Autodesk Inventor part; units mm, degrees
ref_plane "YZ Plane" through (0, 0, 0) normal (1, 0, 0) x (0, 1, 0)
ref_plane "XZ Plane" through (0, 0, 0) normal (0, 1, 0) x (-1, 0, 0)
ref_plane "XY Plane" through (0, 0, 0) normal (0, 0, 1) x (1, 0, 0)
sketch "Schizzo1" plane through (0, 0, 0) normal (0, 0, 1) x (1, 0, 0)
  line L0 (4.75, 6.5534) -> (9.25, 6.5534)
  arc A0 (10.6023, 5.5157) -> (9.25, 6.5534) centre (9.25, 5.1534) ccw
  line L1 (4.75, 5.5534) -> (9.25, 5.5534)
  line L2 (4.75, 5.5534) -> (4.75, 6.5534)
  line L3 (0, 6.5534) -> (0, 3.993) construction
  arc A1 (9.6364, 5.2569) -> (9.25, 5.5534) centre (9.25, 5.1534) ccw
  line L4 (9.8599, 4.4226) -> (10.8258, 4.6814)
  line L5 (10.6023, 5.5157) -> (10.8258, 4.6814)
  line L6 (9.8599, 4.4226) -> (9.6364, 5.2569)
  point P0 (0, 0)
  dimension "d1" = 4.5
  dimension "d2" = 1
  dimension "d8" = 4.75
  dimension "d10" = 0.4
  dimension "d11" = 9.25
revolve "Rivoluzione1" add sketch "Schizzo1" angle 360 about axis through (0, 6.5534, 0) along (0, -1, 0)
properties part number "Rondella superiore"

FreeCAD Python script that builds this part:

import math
import FreeCAD as App
import Part
import Sketcher
Q = App.Units.Quantity

doc = App.newDocument("Part")
params = doc.addObject("Spreadsheet::Sheet", "Params")
for row, (alias, value) in enumerate([
    ("sketch1_radius", "0.4 mm"),
    ("sketch1_height", "1 mm"),
    ("sketch1_width", "4.5 mm"),
    ("revolution_angle", "360 deg"),
], start=1):
    params.set(f"A{row}", alias)
    params.set(f"B{row}", "=" + value)
    params.setAlias(f"B{row}", alias)

body = doc.addObject("PartDesign::Body", "Body")

sketch1 = doc.addObject("Sketcher::SketchObject", "Sketch")
body.addObject(sketch1)
sketch1.AttachmentSupport = (doc.XY_Plane, [""])
sketch1.MapMode = "FlatFace"
sketch1.addGeometry(Part.LineSegment(App.Vector(9.25, 6.55, 0), App.Vector(4.75, 6.55, 0)), False)
sketch1.addGeometry(Part.LineSegment(App.Vector(4.75, 6.55, 0), App.Vector(4.75, 5.55, 0)), False)
sketch1.addGeometry(Part.LineSegment(App.Vector(4.75, 5.55, 0), App.Vector(9.25, 5.55, 0)), False)
sketch1.addGeometry(Part.ArcOfCircle(Part.Circle(App.Vector(9.25, 5.15, 0), App.Vector(0, 0, 1), 0.4), math.radians(15), math.radians(90)), False)
sketch1.addGeometry(Part.LineSegment(App.Vector(9.64, 5.26, 0), App.Vector(9.86, 4.42, 0)), False)
sketch1.addGeometry(Part.LineSegment(App.Vector(9.86, 4.42, 0), App.Vector(10.83, 4.68, 0)), False)
sketch1.addGeometry(Part.LineSegment(App.Vector(10.83, 4.68, 0), App.Vector(10.6, 5.52, 0)), False)
sketch1.addGeometry(Part.ArcOfCircle(Part.Circle(App.Vector(9.25, 5.15, 0), App.Vector(0, 0, 1), 1.4), math.radians(15), math.radians(90)), False)
sketch1.addConstraint(Sketcher.Constraint("Coincident", 0, 2, 1, 1))
sketch1.addConstraint(Sketcher.Constraint("Coincident", 1, 2, 2, 1))
sketch1.addConstraint(Sketcher.Constraint("Tangent", 2, 2, 3, 2))
sketch1.addConstraint(Sketcher.Constraint("Tangent", 3, 1, 4, 1))
sketch1.addConstraint(Sketcher.Constraint("Coincident", 4, 2, 5, 1))
sketch1.addConstraint(Sketcher.Constraint("Coincident", 5, 2, 6, 1))
sketch1.addConstraint(Sketcher.Constraint("Tangent", 6, 2, 7, 1))
sketch1.addConstraint(Sketcher.Constraint("Tangent", 7, 2, 0, 1))
sketch1.addConstraint(Sketcher.Constraint("Horizontal", 0))
sketch1.addConstraint(Sketcher.Constraint("Vertical", 1))
sketch1.addConstraint(Sketcher.Constraint("Horizontal", 2))
sketch1.addConstraint(Sketcher.Constraint("Coincident", 7, 3, 3, 3))
sketch1.addConstraint(Sketcher.Constraint("Perpendicular", 4, 5))
sketch1.addConstraint(Sketcher.Constraint("Perpendicular", 5, 6))
sketch1.addConstraint(Sketcher.Constraint("Radius", 3, Q("0.4 mm")))
sketch1.addConstraint(Sketcher.Constraint("DistanceY", 1, 2, 1, 1, Q("1 mm")))
sketch1.addConstraint(Sketcher.Constraint("DistanceX", 0, 2, 0, 1, Q("4.5 mm")))
sketch1.addConstraint(Sketcher.Constraint("DistanceX", -1, 1, 3, 3, Q("9.25 mm")))
sketch1.addConstraint(Sketcher.Constraint("Angle", 5, Q("14.9993 deg")))
sketch1.addConstraint(Sketcher.Constraint("DistanceX", -1, 1, 4, 2, Q("9.86 mm")))
sketch1.addConstraint(Sketcher.Constraint("DistanceY", -1, 1, 3, 1, Q("5.257 mm")))
sketch1.setExpression("Constraints[14]", "Params.sketch1_radius")
sketch1.setExpression("Constraints[15]", "Params.sketch1_height")
sketch1.setExpression("Constraints[16]", "Params.sketch1_width")
revolution = doc.addObject("PartDesign::Revolution", "Revolution")
body.addObject(revolution)
revolution.Profile = sketch1
revolution.ReferenceAxis = (sketch1, ["V_Axis"])
revolution.setExpression("Angle", "Params.revolution_angle")

doc.recompute()
